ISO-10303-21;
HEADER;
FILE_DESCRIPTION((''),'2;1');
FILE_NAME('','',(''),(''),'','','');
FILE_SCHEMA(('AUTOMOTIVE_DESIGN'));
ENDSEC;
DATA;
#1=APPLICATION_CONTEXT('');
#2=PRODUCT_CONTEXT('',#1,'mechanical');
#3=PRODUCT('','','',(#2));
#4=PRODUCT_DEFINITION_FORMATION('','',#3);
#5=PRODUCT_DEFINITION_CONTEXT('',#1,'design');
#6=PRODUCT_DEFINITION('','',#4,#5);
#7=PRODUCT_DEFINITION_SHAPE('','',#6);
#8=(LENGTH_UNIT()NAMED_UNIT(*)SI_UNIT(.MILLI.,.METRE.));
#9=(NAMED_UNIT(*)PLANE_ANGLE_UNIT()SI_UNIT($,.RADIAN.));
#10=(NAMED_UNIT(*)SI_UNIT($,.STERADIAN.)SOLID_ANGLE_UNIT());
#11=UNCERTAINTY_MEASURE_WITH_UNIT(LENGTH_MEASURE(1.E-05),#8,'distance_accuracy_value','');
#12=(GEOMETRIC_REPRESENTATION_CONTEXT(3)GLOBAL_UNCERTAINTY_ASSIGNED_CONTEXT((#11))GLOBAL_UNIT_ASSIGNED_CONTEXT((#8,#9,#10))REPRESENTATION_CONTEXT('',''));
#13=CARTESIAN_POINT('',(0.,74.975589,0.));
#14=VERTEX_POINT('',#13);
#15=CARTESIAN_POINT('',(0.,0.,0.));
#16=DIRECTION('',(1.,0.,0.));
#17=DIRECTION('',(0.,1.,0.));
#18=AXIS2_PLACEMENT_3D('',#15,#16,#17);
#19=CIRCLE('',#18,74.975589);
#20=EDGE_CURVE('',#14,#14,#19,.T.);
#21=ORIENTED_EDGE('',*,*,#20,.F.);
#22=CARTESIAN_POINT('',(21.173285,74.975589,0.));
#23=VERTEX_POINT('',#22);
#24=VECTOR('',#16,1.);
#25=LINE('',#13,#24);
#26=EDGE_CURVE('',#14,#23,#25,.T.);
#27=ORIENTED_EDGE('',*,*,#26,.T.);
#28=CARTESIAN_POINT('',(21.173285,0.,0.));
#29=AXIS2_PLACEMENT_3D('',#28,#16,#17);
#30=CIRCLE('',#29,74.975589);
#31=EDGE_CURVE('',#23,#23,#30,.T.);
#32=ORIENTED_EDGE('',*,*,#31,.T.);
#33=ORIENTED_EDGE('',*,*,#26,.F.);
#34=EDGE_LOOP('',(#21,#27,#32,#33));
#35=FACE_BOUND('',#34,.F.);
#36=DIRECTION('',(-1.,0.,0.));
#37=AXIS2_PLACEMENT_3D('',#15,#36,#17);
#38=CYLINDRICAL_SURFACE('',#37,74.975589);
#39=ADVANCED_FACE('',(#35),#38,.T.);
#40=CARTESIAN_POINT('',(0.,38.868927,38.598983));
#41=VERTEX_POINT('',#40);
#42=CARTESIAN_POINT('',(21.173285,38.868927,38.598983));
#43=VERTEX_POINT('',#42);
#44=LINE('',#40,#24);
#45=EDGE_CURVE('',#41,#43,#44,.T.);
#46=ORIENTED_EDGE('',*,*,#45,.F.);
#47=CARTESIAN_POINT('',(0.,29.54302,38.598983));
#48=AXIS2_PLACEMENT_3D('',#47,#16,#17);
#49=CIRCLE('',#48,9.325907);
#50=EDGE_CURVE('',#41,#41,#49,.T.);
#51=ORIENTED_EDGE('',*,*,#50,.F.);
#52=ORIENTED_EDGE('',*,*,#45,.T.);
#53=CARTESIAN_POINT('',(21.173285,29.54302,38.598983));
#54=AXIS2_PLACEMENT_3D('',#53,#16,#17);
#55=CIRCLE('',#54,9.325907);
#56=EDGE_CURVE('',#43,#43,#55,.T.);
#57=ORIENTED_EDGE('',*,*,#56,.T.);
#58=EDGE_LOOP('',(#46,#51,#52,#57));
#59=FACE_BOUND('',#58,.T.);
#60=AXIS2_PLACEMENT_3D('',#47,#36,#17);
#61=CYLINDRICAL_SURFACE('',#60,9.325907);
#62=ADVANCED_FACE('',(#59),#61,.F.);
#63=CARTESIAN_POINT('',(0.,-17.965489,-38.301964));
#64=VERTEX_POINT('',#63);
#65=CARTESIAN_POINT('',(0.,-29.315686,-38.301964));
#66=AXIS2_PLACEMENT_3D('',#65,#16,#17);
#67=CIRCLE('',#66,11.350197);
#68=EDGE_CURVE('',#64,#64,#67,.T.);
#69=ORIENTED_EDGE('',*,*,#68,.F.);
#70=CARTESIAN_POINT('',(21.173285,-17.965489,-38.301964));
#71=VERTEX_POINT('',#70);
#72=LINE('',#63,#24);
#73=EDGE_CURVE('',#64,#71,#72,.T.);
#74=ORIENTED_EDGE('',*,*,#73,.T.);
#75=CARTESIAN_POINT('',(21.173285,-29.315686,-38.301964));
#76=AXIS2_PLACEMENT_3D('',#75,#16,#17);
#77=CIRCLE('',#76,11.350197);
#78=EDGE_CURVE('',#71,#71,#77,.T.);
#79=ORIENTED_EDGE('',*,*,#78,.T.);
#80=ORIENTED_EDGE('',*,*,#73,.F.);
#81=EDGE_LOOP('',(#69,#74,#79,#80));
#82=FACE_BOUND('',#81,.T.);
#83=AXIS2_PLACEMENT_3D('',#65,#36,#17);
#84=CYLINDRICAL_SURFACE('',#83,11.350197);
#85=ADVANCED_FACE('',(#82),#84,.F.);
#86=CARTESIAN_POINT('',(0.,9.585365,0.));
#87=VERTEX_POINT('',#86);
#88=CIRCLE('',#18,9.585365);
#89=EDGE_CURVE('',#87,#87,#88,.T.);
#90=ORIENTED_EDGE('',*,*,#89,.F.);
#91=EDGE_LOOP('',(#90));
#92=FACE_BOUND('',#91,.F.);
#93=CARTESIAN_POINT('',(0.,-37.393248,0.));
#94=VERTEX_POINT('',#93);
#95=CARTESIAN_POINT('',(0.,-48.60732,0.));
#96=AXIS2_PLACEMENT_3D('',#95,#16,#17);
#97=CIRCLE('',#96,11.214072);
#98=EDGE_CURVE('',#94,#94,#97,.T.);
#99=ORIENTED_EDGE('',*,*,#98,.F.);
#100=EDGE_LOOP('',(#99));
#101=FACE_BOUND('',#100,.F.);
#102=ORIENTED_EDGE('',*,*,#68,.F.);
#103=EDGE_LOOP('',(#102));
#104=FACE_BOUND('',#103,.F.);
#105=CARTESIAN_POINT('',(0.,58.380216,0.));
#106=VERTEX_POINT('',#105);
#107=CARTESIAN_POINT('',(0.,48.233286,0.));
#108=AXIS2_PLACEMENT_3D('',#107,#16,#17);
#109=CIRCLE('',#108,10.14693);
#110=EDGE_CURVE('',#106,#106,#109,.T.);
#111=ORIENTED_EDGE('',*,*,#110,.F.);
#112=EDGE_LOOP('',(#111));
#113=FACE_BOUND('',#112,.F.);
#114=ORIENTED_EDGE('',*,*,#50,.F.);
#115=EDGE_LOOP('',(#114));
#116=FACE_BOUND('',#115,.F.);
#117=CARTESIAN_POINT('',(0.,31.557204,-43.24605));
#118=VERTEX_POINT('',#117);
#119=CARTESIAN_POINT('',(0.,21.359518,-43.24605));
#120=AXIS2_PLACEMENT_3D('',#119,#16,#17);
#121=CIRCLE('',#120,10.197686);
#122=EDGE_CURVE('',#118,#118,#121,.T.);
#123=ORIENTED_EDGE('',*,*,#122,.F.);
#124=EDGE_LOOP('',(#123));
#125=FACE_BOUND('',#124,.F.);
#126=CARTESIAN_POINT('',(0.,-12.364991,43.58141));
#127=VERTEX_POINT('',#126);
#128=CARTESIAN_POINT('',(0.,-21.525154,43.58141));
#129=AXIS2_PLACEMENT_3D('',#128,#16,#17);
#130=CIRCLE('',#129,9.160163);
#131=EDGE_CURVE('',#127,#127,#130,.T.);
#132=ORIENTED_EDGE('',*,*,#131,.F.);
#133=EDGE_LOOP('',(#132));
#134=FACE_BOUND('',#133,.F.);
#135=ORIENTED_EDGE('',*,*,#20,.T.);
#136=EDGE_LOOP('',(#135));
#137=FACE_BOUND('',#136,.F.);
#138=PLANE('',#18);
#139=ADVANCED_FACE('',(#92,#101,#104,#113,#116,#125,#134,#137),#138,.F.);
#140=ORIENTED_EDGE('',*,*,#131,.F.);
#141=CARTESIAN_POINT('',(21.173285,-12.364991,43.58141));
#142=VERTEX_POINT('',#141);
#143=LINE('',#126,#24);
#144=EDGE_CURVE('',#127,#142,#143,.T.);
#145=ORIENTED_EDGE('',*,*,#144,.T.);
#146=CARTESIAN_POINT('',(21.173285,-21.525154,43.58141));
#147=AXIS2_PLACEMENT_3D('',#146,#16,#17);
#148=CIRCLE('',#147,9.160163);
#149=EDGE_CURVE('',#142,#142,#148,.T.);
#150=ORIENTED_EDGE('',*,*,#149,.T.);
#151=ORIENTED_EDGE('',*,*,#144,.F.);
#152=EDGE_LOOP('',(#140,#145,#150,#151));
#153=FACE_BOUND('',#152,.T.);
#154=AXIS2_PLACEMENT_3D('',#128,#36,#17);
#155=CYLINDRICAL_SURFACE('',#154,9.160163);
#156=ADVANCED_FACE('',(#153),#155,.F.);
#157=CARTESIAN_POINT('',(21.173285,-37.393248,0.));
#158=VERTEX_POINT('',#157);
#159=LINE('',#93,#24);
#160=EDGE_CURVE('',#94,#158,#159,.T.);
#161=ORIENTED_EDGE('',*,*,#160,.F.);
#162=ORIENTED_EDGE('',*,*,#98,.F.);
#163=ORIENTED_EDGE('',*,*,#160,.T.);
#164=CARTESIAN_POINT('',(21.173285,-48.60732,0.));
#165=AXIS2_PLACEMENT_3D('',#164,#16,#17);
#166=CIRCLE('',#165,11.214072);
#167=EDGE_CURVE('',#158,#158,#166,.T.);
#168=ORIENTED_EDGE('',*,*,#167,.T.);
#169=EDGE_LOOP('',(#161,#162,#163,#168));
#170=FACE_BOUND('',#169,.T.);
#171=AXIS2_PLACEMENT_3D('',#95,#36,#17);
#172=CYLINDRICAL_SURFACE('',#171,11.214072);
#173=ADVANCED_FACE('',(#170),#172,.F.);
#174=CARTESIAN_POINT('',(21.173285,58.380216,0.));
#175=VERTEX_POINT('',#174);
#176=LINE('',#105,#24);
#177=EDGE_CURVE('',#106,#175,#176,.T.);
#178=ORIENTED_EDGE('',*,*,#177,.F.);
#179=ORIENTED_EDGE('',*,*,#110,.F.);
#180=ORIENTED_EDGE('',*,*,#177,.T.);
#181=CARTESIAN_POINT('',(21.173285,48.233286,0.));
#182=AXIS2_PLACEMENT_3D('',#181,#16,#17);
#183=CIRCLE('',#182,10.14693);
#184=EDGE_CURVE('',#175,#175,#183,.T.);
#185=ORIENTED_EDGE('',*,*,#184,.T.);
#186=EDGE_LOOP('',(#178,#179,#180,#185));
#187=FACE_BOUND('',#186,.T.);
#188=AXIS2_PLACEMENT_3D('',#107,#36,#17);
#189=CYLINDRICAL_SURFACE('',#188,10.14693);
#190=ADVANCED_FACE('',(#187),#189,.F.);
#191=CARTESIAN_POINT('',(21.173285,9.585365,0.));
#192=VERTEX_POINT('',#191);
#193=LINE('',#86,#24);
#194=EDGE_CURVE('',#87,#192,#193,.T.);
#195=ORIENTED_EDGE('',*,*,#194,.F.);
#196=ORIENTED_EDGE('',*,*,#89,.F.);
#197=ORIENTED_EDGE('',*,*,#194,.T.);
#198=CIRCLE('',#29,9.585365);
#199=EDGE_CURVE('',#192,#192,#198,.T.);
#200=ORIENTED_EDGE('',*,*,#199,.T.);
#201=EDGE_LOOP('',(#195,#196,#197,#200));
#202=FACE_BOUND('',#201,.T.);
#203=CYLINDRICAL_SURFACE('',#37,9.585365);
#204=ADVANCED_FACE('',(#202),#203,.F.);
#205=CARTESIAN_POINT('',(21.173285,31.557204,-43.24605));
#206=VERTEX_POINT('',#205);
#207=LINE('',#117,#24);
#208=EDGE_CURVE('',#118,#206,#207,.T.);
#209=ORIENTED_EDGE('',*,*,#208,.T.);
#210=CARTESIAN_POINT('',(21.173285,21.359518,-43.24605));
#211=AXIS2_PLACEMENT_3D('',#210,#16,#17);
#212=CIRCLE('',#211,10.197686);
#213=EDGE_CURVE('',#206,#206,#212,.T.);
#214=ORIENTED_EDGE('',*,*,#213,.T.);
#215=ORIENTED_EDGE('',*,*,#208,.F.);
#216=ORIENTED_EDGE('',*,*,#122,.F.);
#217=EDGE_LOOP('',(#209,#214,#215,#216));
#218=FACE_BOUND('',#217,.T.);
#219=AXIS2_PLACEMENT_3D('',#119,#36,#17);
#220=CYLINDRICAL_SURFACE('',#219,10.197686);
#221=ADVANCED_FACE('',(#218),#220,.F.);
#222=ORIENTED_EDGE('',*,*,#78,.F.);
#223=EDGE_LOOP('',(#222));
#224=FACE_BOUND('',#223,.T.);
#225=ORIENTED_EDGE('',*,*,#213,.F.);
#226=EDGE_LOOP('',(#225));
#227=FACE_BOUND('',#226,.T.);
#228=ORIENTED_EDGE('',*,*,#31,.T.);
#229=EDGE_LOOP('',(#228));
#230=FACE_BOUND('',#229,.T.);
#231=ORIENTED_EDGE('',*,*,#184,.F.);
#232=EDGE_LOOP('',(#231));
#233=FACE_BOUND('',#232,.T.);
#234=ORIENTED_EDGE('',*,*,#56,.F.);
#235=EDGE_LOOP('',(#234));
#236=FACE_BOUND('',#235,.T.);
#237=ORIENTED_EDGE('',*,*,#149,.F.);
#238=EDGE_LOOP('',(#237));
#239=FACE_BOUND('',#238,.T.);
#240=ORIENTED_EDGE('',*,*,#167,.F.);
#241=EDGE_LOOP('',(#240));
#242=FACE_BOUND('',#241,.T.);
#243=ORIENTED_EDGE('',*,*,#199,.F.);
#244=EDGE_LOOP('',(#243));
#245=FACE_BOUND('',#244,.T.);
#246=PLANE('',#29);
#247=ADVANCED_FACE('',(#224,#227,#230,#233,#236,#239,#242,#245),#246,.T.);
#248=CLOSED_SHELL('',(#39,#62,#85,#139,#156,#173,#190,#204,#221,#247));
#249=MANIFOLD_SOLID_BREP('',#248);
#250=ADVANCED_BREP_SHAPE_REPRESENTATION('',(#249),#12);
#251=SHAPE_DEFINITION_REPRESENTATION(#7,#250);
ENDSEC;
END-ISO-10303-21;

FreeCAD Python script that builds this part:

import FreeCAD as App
import Part
import Sketcher
from FreeCAD import Vector

doc = App.newDocument("Part")
body = doc.addObject("PartDesign::Body", "Body")

# Sketch on YZ plane
sketch1 = doc.addObject("Sketcher::SketchObject", "Sketch")
body.addObject(sketch1)
sketch1.AttachmentSupport = (doc.YZ_Plane, [""])
sketch1.MapMode = "FlatFace"
sketch1.addGeometry([
    Part.Circle(Vector(0, 0, 0), Vector(0, 0, 1), 75),  # 0
    Part.Circle(Vector(-29, -38, 0), Vector(0, 0, 1), 11),  # 1
    Part.Circle(Vector(21, -43, 0), Vector(0, 0, 1), 10),  # 2
    Part.Circle(Vector(-49, 0, 0), Vector(0, 0, 1), 11),  # 3
    Part.Circle(Vector(-22, 44, 0), Vector(0, 0, 1), 9),  # 4
    Part.Circle(Vector(0, 0, 0), Vector(0, 0, 1), 10),  # 5
    Part.Circle(Vector(48, 0, 0), Vector(0, 0, 1), 10),  # 6
    Part.Circle(Vector(30, 39, 0), Vector(0, 0, 1), 9),  # 7
], False)
sketch1.addConstraint([
    Sketcher.Constraint("Coincident", 0, 3, -1, 1),
    Sketcher.Constraint("Coincident", 5, 3, -1, 1),
    Sketcher.Constraint("PointOnObject", 3, 3, -1),
    Sketcher.Constraint("PointOnObject", 6, 3, -1),
    Sketcher.Constraint("Diameter", 0, 149.951178),
    Sketcher.Constraint("Diameter", 2, 20.395372),
    Sketcher.Constraint("Diameter", 5, 19.17073),
    Sketcher.Constraint("Diameter", 6, 20.29386),
    Sketcher.Constraint("Diameter", 1, 22.700394),
    Sketcher.Constraint("Diameter", 3, 22.428144),
    Sketcher.Constraint("Diameter", 4, 18.320326),
    Sketcher.Constraint("Diameter", 7, 18.651814),
    Sketcher.Constraint("DistanceX", 2, 3, 7, 3, 8.183502),
    Sketcher.Constraint("DistanceX", -1, 1, 2, 3, 21.359518),
    Sketcher.Constraint("DistanceY", 2, 3, -1, 1, 43.24605),
    Sketcher.Constraint("DistanceX", 3, 3, -1, 1, 48.60732),
    Sketcher.Constraint("DistanceY", -1, 1, 4, 3, 43.58141),
    Sketcher.Constraint("DistanceX", 1, 3, 4, 3, 7.790532),
    Sketcher.Constraint("DistanceX", 4, 3, 6, 3, 69.75844),
    Sketcher.Constraint("DistanceX", 1, 3, -1, 1, 29.315686),
    Sketcher.Constraint("DistanceY", 1, 3, -1, 1, 38.301964),
    Sketcher.Constraint("DistanceY", -1, 1, 7, 3, 38.598983),
])
pad1 = doc.addObject("PartDesign::Pad", "Pad")
body.addObject(pad1)
pad1.Profile = sketch1
pad1.Length = 21.173285

doc.recompute()
